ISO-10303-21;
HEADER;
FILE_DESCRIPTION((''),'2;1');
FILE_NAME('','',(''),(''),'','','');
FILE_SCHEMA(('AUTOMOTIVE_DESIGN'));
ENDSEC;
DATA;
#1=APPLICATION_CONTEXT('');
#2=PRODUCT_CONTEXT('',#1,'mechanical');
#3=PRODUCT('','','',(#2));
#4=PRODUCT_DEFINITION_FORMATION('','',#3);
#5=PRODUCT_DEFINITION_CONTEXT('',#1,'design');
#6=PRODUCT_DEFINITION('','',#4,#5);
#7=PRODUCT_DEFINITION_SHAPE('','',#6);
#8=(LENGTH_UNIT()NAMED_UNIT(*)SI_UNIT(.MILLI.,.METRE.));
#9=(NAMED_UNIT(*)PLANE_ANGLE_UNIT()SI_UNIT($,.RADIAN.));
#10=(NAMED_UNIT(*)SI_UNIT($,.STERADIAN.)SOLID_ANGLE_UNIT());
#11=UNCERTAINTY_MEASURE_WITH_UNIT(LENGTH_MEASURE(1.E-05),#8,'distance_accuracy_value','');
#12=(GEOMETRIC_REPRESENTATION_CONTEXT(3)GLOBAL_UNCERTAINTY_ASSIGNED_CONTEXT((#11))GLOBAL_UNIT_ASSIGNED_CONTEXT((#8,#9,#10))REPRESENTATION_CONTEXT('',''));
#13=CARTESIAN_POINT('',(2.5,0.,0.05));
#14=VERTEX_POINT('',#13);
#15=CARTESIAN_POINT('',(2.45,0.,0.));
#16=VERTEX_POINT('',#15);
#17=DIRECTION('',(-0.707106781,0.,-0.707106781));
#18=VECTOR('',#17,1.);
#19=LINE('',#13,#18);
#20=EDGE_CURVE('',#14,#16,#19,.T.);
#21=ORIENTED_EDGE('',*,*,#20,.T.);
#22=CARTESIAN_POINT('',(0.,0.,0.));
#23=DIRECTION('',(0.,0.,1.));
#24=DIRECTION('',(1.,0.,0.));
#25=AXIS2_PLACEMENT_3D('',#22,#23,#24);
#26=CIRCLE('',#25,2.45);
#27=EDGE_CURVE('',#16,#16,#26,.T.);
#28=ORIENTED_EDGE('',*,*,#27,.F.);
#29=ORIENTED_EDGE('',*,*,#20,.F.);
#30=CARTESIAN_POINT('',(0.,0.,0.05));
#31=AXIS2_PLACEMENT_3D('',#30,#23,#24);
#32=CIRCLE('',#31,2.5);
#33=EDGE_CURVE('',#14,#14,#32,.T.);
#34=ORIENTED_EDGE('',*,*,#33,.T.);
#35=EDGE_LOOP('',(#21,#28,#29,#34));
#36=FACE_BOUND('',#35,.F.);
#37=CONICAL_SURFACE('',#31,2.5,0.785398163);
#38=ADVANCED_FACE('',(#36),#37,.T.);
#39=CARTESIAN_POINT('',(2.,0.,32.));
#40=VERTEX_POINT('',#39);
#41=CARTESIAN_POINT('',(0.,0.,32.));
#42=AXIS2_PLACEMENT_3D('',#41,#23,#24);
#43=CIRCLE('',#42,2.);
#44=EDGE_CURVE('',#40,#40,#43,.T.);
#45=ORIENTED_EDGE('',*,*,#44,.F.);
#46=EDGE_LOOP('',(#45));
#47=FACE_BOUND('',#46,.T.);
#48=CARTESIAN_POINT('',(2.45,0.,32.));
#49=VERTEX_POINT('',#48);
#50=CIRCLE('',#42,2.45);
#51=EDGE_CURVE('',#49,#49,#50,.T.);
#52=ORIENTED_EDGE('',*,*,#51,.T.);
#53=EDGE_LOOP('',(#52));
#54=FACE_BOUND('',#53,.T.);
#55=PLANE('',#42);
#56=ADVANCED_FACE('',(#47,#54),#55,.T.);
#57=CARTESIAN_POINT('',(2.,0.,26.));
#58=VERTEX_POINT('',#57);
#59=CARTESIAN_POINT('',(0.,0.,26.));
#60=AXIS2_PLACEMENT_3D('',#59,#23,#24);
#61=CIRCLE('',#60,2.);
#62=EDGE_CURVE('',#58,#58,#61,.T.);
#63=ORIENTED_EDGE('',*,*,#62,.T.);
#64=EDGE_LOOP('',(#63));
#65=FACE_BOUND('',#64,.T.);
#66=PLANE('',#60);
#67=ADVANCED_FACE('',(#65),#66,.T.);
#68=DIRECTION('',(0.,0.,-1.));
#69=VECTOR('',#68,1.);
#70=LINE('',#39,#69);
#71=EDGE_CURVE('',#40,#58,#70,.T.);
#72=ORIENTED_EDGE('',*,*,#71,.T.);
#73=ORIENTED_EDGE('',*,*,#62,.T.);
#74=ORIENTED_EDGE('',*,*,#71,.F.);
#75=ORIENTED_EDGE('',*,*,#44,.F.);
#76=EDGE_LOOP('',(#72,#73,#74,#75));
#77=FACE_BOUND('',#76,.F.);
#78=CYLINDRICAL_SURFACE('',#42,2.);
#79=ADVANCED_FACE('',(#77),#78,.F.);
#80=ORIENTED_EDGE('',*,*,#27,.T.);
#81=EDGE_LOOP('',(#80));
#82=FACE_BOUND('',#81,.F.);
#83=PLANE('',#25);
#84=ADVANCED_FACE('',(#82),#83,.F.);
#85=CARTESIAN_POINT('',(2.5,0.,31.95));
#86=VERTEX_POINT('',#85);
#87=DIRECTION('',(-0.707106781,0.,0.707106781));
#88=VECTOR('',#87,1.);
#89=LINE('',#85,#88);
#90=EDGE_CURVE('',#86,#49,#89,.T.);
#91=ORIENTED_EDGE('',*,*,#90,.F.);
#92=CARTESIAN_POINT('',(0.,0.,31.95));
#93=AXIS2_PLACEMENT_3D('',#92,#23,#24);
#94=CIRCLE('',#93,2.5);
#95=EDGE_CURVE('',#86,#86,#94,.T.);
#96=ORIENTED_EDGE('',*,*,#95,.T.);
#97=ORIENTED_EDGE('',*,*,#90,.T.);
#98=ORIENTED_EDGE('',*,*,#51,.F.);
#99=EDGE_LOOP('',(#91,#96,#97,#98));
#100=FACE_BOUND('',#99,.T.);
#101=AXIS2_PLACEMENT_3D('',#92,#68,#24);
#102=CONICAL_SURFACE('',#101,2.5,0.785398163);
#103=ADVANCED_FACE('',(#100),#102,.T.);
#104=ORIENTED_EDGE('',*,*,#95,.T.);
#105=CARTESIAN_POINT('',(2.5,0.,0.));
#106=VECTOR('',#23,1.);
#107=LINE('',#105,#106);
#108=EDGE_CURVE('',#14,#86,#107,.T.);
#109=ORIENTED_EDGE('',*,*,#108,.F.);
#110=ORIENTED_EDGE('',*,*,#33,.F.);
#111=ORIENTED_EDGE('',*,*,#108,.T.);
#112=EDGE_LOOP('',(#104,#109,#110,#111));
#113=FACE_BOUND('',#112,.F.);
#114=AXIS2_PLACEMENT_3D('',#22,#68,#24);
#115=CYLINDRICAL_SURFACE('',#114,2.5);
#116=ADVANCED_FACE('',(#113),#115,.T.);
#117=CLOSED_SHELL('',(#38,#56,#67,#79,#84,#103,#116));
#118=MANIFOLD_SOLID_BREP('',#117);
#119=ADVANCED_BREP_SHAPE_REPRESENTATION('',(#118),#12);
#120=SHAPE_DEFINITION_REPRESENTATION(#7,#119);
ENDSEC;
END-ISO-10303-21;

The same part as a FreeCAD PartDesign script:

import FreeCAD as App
import Part
import Sketcher
from FreeCAD import Vector


def edges_at(feature, points):
    """Names of the edges that pass closest to the given points."""
    edges = feature.Shape.Edges
    near = lambda p: min(range(len(edges)), key=lambda i: edges[i].distToShape(Part.Vertex(*p))[0])
    return sorted({f"Edge{near(p) + 1}" for p in points})

doc = App.newDocument("Part")
body = doc.addObject("PartDesign::Body", "Body")

sketch1 = body.newObject("Sketcher::SketchObject", "Sketch")
sketch1.AttachmentSupport = (doc.getObject("XY_Plane"), [""])
sketch1.MapMode = "FlatFace"
sketch1.addGeometry(Part.Circle(Vector(0, 0, 0), Vector(0, 0, 1), 2.5), False)
sketch1.addConstraint([
    Sketcher.Constraint("Coincident", 0, 3, -1, 1),
    Sketcher.Constraint("Diameter", 0, 5.0),
])
pad1 = body.newObject("PartDesign::Pad", "Pad")
pad1.Profile = sketch1
pad1.Length = 32

sketch2 = body.newObject("Sketcher::SketchObject", "Sketch001")
sketch2.AttachmentSupport = (doc.getObject("XY_Plane"), [""])
sketch2.MapMode = "FlatFace"
sketch2.AttachmentOffset = App.Placement(Vector(0, 0, 32), App.Rotation())
sketch2.addGeometry(Part.Circle(Vector(0, 0, 0), Vector(0, 0, 1), 2), False)
sketch2.addConstraint([
    Sketcher.Constraint("Coincident", 0, 3, -1, 1),
    Sketcher.Constraint("Diameter", 0, 4.0),
])
pocket1 = body.newObject("PartDesign::Pocket", "Pocket")
pocket1.Profile = sketch2
pocket1.Length = 6
doc.recompute()

chamfer = body.newObject("PartDesign::Chamfer", "Chamfer")
chamfer.Base = (pocket1, edges_at(pocket1, [(-2.5, 0, 32), (-2.5, 0, 0)]))
chamfer.Size = 0.05

doc.recompute()
